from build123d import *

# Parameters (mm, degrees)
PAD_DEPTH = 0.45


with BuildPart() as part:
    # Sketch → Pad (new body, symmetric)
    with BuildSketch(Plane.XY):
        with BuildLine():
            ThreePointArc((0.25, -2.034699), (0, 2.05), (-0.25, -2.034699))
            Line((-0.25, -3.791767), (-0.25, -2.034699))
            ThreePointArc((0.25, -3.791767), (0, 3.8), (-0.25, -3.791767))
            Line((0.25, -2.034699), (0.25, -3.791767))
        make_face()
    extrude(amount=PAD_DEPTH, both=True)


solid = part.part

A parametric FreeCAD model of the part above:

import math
import FreeCAD as App
import Part
import Sketcher
from FreeCAD import Vector

doc = App.newDocument("Part")
body = doc.addObject("PartDesign::Body", "Body")

sketch1 = body.newObject("Sketcher::SketchObject", "Sketch")
sketch1.AttachmentSupport = (doc.getObject("XY_Plane"), [""])
sketch1.MapMode = "FlatFace"
sketch1.addGeometry(Part.ArcOfCircle(Part.Circle(Vector(0, 0, 0), Vector(0, 0, 1), 2.05), math.radians(-82.995274), math.radians(262.995274)), False)
sketch1.addGeometry(Part.LineSegment(Vector(0.25, -2.034699, 0), Vector(0.25, -3.791767, 0)), False)
sketch1.addGeometry(Part.ArcOfCircle(Part.Circle(Vector(0, 0, 0), Vector(0, 0, 1), 3.8), math.radians(-86.227816), math.radians(266.227816)), False)
sketch1.addGeometry(Part.LineSegment(Vector(-0.25, -3.791767, 0), Vector(-0.25, -2.034699, 0)), False)
sketch1.addConstraint(Sketcher.Constraint("Coincident", 0, 1, 1, 1))
sketch1.addConstraint(Sketcher.Constraint("Coincident", 1, 2, 2, 1))
sketch1.addConstraint(Sketcher.Constraint("Coincident", 2, 2, 3, 1))
sketch1.addConstraint(Sketcher.Constraint("Coincident", 3, 2, 0, 2))
sketch1.addConstraint(Sketcher.Constraint("Vertical", 1))
sketch1.addConstraint(Sketcher.Constraint("Vertical", 3))
sketch1.addConstraint(Sketcher.Constraint("Coincident", 0, 3, -1, 1))
sketch1.addConstraint(Sketcher.Constraint("Coincident", 2, 3, -1, 1))
sketch1.addConstraint(Sketcher.Constraint("Horizontal", 1, 2, 2, 2))
sketch1.addConstraint(Sketcher.Constraint("Radius", 2, 3.8))
sketch1.addConstraint(Sketcher.Constraint("Radius", 0, 2.05))
sketch1.addConstraint(Sketcher.Constraint("DistanceX", 2, 2, 1, 2, 0.5))
pad1 = body.newObject("PartDesign::Pad", "Pad")
pad1.Profile = sketch1
pad1.Length = 0.9
pad1.Midplane = True

doc.recompute()
